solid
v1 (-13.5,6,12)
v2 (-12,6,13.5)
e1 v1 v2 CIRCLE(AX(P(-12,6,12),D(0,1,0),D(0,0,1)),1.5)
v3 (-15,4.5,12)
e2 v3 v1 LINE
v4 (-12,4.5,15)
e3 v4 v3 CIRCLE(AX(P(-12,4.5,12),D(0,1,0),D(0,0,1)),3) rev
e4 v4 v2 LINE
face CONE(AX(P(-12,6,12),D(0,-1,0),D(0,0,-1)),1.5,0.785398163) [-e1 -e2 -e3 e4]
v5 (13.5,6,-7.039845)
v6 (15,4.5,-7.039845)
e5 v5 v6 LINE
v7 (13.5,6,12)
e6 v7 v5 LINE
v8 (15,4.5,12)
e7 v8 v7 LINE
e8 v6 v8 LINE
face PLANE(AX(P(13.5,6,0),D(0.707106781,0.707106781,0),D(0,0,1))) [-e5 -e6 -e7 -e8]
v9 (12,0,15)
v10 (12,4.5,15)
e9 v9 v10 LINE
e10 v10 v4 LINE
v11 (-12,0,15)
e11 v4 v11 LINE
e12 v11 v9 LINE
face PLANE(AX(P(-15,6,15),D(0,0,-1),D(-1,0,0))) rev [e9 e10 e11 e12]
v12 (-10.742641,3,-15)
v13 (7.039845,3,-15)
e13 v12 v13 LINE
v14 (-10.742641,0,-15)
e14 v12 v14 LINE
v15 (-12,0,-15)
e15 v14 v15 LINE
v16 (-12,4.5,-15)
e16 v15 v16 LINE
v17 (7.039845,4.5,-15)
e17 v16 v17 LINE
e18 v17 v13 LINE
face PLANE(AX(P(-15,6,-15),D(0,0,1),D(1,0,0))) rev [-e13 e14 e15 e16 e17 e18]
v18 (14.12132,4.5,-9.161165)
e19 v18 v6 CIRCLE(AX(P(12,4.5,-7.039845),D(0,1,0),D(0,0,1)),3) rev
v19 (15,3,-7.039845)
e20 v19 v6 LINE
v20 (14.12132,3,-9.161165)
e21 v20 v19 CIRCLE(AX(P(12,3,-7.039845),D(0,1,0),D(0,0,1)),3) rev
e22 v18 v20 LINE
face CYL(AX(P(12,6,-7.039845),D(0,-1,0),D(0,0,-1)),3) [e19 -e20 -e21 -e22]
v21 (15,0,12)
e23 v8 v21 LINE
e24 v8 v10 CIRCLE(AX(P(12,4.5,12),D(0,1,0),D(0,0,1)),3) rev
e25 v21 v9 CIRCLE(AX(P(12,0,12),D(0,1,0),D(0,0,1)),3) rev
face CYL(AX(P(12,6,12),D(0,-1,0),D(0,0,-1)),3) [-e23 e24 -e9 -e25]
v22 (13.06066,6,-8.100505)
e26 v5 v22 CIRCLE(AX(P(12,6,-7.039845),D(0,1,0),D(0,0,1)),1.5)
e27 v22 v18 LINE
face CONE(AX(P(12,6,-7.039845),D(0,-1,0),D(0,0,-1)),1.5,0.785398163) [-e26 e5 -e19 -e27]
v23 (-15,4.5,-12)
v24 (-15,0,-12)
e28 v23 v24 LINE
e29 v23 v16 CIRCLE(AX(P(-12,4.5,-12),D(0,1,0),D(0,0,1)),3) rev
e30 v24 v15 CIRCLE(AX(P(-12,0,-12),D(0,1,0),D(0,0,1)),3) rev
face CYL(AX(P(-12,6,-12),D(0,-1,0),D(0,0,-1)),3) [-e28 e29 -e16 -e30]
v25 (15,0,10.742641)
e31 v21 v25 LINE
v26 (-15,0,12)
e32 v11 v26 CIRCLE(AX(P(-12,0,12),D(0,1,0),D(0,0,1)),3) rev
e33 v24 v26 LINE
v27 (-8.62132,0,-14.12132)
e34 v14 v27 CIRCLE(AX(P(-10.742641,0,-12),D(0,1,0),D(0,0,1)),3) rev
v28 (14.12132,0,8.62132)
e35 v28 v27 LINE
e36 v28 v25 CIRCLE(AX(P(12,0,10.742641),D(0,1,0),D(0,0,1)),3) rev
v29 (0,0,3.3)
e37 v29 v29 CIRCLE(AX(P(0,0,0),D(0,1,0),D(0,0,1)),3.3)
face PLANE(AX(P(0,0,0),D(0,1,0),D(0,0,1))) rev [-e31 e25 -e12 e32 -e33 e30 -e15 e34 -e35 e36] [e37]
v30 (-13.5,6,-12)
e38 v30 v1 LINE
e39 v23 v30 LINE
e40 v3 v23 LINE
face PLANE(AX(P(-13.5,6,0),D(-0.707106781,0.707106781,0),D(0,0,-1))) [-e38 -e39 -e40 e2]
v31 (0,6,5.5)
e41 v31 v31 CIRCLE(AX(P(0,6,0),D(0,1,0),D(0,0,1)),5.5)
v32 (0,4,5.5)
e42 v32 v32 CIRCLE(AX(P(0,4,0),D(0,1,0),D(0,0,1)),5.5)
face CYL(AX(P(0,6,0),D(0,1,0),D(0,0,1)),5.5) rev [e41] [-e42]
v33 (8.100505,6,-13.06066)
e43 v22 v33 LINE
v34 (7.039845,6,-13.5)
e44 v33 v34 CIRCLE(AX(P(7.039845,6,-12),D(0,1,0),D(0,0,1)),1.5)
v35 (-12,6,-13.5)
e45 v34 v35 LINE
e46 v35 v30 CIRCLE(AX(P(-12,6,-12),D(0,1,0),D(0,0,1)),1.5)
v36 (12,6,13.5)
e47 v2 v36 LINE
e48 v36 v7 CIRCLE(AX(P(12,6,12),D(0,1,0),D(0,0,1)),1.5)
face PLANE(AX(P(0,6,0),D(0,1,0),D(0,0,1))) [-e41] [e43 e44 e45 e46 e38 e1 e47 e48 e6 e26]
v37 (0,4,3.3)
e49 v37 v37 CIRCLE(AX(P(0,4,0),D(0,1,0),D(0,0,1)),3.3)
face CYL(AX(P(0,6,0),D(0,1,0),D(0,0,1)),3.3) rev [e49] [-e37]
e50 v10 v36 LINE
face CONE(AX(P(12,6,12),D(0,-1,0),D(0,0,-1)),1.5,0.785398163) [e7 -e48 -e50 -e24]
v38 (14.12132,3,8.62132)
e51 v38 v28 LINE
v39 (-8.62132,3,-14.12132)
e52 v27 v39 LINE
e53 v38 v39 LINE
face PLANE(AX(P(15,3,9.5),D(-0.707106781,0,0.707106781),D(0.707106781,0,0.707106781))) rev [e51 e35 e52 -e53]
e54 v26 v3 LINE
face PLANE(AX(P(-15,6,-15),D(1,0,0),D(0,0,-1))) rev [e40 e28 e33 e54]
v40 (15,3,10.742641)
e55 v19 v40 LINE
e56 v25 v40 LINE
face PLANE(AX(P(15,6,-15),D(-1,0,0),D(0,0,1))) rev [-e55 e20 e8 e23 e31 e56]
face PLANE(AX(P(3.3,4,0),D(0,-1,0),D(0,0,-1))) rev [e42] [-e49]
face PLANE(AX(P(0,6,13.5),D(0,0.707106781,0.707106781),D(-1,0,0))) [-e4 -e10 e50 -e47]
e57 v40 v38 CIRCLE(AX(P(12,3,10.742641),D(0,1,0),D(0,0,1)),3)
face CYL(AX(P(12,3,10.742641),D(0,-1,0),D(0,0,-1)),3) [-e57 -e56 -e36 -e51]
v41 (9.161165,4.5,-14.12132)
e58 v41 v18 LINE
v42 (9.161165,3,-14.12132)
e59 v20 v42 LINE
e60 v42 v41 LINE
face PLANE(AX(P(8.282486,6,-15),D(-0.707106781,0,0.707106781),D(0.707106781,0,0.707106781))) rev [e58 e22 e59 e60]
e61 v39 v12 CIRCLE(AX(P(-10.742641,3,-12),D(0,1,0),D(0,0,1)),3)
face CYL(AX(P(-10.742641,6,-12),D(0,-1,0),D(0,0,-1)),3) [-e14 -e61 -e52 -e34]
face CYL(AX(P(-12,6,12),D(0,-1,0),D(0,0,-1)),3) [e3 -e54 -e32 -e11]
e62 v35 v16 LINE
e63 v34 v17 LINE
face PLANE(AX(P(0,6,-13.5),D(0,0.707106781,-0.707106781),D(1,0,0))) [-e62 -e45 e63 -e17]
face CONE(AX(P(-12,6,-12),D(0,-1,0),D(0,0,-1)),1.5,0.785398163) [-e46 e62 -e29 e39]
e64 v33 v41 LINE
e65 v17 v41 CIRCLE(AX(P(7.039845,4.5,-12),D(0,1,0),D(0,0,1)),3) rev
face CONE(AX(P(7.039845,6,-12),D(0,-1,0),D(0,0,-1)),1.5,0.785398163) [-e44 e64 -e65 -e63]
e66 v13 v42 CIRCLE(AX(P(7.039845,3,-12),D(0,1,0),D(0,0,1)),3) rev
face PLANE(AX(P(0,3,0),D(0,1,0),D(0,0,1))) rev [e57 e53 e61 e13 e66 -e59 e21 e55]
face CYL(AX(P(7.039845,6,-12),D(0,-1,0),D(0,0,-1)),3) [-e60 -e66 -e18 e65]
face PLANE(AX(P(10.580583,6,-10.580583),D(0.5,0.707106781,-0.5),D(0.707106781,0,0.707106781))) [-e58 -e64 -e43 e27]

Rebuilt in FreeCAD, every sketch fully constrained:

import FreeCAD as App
import Part
import Sketcher

V = App.Vector


def edges_at(feature, points):
    """Names of the edges that pass closest to the given points."""
    edges = feature.Shape.Edges
    near = lambda p: min(range(len(edges)), key=lambda i: edges[i].distToShape(Part.Vertex(*p))[0])
    return sorted({f"Edge{near(p) + 1}" for p in points})

doc = App.newDocument("Part")
body = doc.addObject("PartDesign::Body", "Body")

sketch1 = body.newObject("Sketcher::SketchObject", "Sketch")
sketch1.AttachmentSupport = (doc.getObject("XZ_Plane"), [""])
sketch1.MapMode = "FlatFace"
sketch1.addGeometry(Part.LineSegment(V(-15, -15, 0), V(-15, 15, 0)), False)
sketch1.addGeometry(Part.LineSegment(V(-15, 15, 0), V(15, 15, 0)), False)
sketch1.addGeometry(Part.LineSegment(V(15, 15, 0), V(15, -15, 0)), False)
sketch1.addGeometry(Part.LineSegment(V(15, -15, 0), V(-15, -15, 0)), False)
sketch1.addConstraint(Sketcher.Constraint("Coincident", 0, 2, 1, 1))
sketch1.addConstraint(Sketcher.Constraint("Coincident", 1, 2, 2, 1))
sketch1.addConstraint(Sketcher.Constraint("Coincident", 2, 2, 3, 1))
sketch1.addConstraint(Sketcher.Constraint("Coincident", 3, 2, 0, 1))
sketch1.addConstraint(Sketcher.Constraint("Vertical", 0))
sketch1.addConstraint(Sketcher.Constraint("Horizontal", 1))
sketch1.addConstraint(Sketcher.Constraint("Vertical", 2))
sketch1.addConstraint(Sketcher.Constraint("Horizontal", 3))
sketch1.addConstraint(Sketcher.Constraint("Symmetric", 0, 2, 2, 2, -1, 1))
sketch1.addConstraint(Sketcher.Constraint("Equal", 3, 0))
sketch1.addConstraint(Sketcher.Constraint("DistanceX", 1, 1, 1, 2, 30.0))
pad1 = body.newObject("PartDesign::Pad", "Pad")
pad1.Profile = sketch1
pad1.Length = 6
pad1.Reversed = True

sketch2 = body.newObject("Sketcher::SketchObject", "Sketch001")
sketch2.AttachmentSupport = (doc.getObject("XZ_Plane"), [""])
sketch2.MapMode = "FlatFace"
sketch2.addGeometry(Part.LineSegment(V(15, 9.5, 0), V(-9.5, -15, 0)), False)
sketch2.addGeometry(Part.LineSegment(V(-9.5, -15, 0), V(15, -15, 0)), False)
sketch2.addGeometry(Part.LineSegment(V(15, -15, 0), V(15, 9.5, 0)), False)
sketch2.addConstraint(Sketcher.Constraint("Coincident", 0, 2, 1, 1))
sketch2.addConstraint(Sketcher.Constraint("Coincident", 1, 2, 2, 1))
sketch2.addConstraint(Sketcher.Constraint("Coincident", 2, 2, 0, 1))
sketch2.addConstraint(Sketcher.Constraint("Horizontal", 1))
sketch2.addConstraint(Sketcher.Constraint("Vertical", 2))
sketch2.addConstraint(Sketcher.Constraint("Equal", 1, 2))
sketch2.addConstraint(Sketcher.Constraint("DistanceX", 1, 1, 1, 2, 24.5))
sketch2.addConstraint(Sketcher.Constraint("DistanceY", 0, 2, -1, 1, 15.0))
sketch2.addConstraint(Sketcher.Constraint("DistanceX", -1, 1, 1, 2, 15.0))
pocket1 = body.newObject("PartDesign::Pocket", "Pocket")
pocket1.Profile = sketch2
pocket1.Length = 3

sketch3 = body.newObject("Sketcher::SketchObject", "Sketch002")
sketch3.AttachmentSupport = (doc.getObject("XZ_Plane"), [""])
sketch3.MapMode = "FlatFace"
sketch3.AttachmentOffset = App.Placement(V(0, 0, -3), App.Rotation())
sketch3.addGeometry(Part.LineSegment(V(15, -15, 0), V(15, -8.282486, 0)), False)
sketch3.addGeometry(Part.LineSegment(V(15, -8.282486, 0), V(8.282486, -15, 0)), False)
sketch3.addGeometry(Part.LineSegment(V(8.282486, -15, 0), V(15, -15, 0)), False)
sketch3.addConstraint(Sketcher.Constraint("Coincident", 0, 2, 1, 1))
sketch3.addConstraint(Sketcher.Constraint("Coincident", 1, 2, 2, 1))
sketch3.addConstraint(Sketcher.Constraint("Coincident", 2, 2, 0, 1))
sketch3.addConstraint(Sketcher.Constraint("Vertical", 0))
sketch3.addConstraint(Sketcher.Constraint("Horizontal", 2))
sketch3.addConstraint(Sketcher.Constraint("Equal", 2, 0))
sketch3.addConstraint(Sketcher.Constraint("DistanceX", -1, 1, 0, 2, 15.0))
sketch3.addConstraint(Sketcher.Constraint("DistanceY", 1, 2, -1, 1, 15.0))
sketch3.addConstraint(Sketcher.Constraint("Distance", 1, 9.5))
pocket2 = body.newObject("PartDesign::Pocket", "Pocket001")
pocket2.Profile = sketch3
pocket2.Type = "ThroughAll"
doc.recompute()

fillet = body.newObject("PartDesign::Fillet", "Fillet")
fillet.Base = (pocket2, edges_at(pocket2, [
    (15, 1.5, 9.5),
    (-9.5, 1.5, -15),
    (8.282, 4.5, -15),
    (15, 4.5, -8.282),
    (15, 3, 15),
    (-15, 3, 15),
    (-15, 3, -15),
]))
fillet.Radius = 3
doc.recompute()

chamfer = body.newObject("PartDesign::Chamfer", "Chamfer")
chamfer.Base = (fillet, edges_at(fillet, [
    (15, 6, 2.48),
    (-2.48, 6, -15),
    (0, 6, 15),
    (-15, 6, 0),
    (11.641, 6, -11.641),
    (14.121, 6, 14.121),
    (14.772, 6, -8.188),
    (8.188, 6, -14.772),
    (-14.121, 6, -14.121),
    (-14.121, 6, 14.121),
]))
chamfer.Size = 1.5

sketch4 = body.newObject("Sketcher::SketchObject", "Sketch003")
sketch4.AttachmentSupport = (doc.getObject("XZ_Plane"), [""])
sketch4.MapMode = "FlatFace"
sketch4.AttachmentOffset = App.Placement(V(0, 0, -6), App.Rotation())
sketch4.addGeometry(Part.Circle(V(0, 0, 0), V(0, 0, 1), 3.3), False)
sketch4.addConstraint(Sketcher.Constraint("Coincident", 0, 3, -1, 1))
sketch4.addConstraint(Sketcher.Constraint("Diameter", 0, 6.6))
doc.recompute()
hole = body.newObject("PartDesign::Hole", "Hole")
hole.Profile = sketch4
hole.ThreadType = "None"
hole.Diameter = 6.6
hole.DepthType = "ThroughAll"
hole.HoleCutType = "Counterbore"
hole.HoleCutDiameter = 11
hole.HoleCutDepth = 2
hole.Reversed = True

doc.recompute()
